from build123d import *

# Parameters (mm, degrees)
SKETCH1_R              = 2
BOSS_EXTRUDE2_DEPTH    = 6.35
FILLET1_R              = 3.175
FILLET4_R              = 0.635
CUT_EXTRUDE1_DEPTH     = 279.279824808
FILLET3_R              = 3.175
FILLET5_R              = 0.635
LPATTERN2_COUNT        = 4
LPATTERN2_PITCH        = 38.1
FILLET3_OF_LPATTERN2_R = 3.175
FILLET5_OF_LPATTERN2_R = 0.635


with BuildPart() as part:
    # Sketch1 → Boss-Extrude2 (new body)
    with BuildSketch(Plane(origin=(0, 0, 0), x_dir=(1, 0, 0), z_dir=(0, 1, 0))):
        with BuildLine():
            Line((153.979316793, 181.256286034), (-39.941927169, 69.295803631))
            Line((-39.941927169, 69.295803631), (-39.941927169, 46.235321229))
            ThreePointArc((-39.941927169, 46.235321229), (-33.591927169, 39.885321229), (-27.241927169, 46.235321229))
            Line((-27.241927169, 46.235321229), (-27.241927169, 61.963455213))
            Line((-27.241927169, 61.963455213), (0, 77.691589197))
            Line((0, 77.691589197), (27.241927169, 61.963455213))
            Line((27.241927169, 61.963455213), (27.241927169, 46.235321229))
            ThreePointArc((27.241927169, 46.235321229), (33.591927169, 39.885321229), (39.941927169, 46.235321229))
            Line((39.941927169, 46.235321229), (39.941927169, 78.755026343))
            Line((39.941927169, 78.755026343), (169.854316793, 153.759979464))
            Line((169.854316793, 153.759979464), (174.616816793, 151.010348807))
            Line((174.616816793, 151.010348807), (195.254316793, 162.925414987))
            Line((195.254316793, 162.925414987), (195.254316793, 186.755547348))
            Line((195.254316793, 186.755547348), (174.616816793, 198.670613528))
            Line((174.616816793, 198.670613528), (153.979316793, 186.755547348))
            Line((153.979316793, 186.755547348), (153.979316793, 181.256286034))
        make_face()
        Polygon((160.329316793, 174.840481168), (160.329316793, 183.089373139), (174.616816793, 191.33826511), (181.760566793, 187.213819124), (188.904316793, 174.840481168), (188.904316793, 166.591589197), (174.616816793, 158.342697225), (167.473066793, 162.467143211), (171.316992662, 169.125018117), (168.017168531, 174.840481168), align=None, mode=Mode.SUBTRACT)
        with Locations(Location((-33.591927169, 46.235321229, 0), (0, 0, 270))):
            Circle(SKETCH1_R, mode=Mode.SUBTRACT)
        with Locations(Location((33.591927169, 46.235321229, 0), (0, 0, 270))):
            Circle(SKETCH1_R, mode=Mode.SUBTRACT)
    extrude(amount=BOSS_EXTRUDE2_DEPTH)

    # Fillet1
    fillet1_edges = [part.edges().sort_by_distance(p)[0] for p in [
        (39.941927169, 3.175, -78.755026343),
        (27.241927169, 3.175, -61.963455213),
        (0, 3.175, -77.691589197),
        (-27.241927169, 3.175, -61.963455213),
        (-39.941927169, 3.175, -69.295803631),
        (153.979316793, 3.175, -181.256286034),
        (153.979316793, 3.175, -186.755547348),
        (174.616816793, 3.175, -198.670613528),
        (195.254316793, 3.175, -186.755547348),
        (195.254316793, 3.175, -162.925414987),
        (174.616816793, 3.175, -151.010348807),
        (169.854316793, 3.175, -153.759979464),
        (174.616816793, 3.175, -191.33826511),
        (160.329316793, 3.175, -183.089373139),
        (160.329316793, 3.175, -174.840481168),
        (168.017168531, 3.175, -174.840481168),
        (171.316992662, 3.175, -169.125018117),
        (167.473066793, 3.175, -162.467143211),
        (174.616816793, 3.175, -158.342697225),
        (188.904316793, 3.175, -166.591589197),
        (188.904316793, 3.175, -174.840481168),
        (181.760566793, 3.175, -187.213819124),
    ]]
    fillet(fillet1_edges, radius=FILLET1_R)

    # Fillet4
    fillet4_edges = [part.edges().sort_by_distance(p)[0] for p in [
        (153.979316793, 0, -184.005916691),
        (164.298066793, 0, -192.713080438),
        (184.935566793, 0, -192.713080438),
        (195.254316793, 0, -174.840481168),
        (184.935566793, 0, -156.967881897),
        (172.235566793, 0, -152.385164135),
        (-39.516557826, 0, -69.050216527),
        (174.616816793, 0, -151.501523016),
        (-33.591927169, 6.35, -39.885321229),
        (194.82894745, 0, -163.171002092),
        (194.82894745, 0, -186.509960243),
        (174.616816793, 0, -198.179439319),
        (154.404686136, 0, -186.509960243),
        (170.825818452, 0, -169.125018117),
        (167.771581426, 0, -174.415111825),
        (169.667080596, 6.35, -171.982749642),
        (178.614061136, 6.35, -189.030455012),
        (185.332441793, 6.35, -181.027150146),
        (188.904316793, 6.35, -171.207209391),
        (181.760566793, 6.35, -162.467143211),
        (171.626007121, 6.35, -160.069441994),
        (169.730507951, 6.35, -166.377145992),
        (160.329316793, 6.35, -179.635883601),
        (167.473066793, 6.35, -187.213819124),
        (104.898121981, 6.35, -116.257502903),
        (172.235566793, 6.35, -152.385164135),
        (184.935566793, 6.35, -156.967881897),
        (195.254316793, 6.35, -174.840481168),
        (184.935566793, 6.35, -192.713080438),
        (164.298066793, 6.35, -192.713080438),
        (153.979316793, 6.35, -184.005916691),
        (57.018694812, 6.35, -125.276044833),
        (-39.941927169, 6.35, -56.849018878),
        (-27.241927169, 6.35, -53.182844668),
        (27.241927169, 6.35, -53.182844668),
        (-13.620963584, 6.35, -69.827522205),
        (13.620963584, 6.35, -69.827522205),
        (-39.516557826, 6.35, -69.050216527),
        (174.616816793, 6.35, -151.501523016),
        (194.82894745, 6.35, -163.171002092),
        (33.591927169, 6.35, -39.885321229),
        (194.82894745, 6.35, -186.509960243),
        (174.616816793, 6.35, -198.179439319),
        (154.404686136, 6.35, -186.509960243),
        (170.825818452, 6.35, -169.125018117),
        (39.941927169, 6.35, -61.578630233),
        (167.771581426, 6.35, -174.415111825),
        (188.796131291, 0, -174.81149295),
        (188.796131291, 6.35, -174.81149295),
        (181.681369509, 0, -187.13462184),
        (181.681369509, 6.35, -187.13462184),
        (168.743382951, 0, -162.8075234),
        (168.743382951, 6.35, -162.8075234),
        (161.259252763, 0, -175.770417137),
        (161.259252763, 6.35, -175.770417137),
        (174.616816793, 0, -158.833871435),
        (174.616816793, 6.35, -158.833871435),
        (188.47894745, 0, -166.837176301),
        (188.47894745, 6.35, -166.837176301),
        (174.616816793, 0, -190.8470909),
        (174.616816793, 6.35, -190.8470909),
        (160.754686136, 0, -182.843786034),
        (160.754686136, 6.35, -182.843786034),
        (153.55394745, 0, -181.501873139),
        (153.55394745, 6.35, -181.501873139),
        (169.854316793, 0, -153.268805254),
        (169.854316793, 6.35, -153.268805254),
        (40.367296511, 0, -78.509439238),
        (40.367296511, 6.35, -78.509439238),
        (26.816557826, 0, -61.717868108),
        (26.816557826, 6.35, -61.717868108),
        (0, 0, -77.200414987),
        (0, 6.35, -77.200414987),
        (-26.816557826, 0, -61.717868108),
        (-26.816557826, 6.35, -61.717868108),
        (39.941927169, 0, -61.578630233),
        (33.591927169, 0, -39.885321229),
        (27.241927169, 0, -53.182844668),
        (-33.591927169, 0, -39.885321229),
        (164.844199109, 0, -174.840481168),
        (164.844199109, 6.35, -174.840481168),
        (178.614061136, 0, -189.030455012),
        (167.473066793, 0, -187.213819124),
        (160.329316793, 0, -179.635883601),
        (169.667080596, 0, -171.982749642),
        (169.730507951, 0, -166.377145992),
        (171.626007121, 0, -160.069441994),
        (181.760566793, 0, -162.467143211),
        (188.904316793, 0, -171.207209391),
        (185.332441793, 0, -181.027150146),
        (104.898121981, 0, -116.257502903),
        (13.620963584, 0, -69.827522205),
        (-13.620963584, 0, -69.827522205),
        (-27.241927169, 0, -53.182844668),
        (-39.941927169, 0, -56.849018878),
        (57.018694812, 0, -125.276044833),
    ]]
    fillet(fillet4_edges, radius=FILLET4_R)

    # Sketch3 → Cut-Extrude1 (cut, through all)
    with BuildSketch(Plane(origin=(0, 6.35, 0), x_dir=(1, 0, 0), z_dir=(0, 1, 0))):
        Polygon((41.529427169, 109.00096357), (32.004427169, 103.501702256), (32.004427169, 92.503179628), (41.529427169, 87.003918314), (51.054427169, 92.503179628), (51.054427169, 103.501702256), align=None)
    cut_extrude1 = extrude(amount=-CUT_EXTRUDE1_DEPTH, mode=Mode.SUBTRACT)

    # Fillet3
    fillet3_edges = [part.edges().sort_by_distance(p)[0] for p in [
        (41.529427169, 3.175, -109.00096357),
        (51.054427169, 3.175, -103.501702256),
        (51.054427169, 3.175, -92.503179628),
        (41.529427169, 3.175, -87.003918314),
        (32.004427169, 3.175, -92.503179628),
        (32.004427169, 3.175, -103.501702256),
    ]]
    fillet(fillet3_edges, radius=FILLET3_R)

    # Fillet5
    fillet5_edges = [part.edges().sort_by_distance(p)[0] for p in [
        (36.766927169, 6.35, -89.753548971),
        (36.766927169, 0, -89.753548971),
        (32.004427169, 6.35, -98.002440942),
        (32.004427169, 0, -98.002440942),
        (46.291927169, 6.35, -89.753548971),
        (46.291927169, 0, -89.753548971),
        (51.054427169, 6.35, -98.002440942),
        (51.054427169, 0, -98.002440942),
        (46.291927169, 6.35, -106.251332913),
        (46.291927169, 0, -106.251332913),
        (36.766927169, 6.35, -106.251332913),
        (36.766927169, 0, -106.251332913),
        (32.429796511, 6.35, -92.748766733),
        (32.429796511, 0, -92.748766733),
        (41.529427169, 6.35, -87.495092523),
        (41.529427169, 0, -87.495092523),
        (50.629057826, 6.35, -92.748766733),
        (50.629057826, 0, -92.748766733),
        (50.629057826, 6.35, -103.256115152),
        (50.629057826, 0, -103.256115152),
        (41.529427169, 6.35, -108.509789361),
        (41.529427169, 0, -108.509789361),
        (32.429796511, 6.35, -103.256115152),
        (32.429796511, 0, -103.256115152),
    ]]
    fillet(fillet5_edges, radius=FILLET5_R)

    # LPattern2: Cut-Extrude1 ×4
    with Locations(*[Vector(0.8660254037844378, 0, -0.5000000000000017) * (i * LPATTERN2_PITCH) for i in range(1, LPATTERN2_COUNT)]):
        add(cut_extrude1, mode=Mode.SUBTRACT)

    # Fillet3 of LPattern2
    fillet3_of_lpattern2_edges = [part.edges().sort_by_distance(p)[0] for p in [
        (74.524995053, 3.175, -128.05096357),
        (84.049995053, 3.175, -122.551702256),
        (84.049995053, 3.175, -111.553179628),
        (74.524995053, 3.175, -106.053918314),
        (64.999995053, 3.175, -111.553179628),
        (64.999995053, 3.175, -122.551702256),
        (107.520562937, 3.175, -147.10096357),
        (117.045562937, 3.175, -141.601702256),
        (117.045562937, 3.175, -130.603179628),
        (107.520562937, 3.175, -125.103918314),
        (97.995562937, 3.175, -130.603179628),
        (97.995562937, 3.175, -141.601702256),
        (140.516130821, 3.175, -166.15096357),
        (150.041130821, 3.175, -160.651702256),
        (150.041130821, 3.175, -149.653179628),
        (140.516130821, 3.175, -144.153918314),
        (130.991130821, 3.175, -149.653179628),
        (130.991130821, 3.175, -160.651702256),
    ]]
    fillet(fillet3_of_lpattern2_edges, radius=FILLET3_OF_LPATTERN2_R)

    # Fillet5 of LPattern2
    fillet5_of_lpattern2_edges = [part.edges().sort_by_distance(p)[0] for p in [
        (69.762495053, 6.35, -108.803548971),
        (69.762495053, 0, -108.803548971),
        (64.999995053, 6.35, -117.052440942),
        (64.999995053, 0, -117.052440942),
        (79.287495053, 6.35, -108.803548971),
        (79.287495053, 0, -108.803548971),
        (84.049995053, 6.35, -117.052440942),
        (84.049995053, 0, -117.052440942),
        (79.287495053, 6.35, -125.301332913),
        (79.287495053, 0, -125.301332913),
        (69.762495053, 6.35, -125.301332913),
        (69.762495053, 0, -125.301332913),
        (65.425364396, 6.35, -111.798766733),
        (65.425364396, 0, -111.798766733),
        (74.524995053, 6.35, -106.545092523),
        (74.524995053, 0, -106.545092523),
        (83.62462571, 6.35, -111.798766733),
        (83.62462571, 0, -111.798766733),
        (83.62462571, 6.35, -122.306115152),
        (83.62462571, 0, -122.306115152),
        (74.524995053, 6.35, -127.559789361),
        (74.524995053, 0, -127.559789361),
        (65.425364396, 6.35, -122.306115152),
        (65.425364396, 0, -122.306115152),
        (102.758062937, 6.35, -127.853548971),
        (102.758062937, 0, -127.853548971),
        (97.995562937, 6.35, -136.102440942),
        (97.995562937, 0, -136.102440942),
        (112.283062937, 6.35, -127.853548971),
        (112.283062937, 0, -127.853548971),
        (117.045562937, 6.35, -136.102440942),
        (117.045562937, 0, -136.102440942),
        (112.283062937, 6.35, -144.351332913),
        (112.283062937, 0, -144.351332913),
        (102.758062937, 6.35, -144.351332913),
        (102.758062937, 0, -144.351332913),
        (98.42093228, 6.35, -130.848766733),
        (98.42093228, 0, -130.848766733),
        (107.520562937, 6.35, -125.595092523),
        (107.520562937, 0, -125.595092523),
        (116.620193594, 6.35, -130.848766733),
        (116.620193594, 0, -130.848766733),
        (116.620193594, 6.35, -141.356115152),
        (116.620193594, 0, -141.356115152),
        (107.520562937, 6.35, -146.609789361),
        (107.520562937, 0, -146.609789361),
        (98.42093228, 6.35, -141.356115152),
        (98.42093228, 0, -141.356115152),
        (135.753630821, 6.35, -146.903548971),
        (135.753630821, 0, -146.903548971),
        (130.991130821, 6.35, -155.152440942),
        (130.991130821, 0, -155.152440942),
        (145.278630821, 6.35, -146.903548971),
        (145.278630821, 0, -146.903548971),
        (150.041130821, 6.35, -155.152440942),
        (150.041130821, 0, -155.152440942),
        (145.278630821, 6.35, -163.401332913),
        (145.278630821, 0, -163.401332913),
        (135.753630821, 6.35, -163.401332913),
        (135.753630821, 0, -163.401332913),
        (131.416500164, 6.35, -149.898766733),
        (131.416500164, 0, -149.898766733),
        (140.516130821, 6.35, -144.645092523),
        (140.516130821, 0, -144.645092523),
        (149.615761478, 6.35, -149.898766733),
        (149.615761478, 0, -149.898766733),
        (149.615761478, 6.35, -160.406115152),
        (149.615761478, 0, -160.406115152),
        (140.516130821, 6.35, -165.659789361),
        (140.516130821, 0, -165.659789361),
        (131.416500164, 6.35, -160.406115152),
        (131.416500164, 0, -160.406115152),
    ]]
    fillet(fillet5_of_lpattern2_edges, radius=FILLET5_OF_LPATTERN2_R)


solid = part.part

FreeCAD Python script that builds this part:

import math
import FreeCAD as App
import Part
import Sketcher

V = App.Vector
Q = App.Units.Quantity


def edges_at(feature, points):
    """Names of the edges that pass closest to the given points."""
    edges = feature.Shape.Edges
    near = lambda p: min(range(len(edges)), key=lambda i: edges[i].distToShape(Part.Vertex(*p))[0])
    return sorted({f"Edge{near(p) + 1}" for p in points})


def add_polygon(sketch, points):
    """Adds a closed chain of lines whose ends are joined by coincident constraints."""
    first, n = sketch.GeometryCount, len(points)
    for a, b in zip(points, points[1:] + points[:1]):
        sketch.addGeometry(Part.LineSegment(App.Vector(*a, 0), App.Vector(*b, 0)), False)
    for i in range(n):
        sketch.addConstraint(Sketcher.Constraint("Coincident", first + i, 2, first + (i + 1) % n, 1))

doc = App.newDocument("Part")
body = doc.addObject("PartDesign::Body", "Body")

# Sketch on XZ plane
sketch1 = body.newObject("Sketcher::SketchObject", "Sketch")
sketch1.AttachmentSupport = (doc.getObject("XZ_Plane"), [""])
sketch1.MapMode = "FlatFace"
sketch1.addGeometry(Part.LineSegment(V(154, -181.3, 0), V(-39.9, -69.3, 0)), False)  # 0
sketch1.addGeometry(Part.LineSegment(V(-39.9, -69.3, 0), V(-39.9, -46.2, 0)), False)  # 1
sketch1.addGeometry(Part.ArcOfCircle(Part.Circle(V(-33.6, -46.2, 0), V(0, 0, 1), 6.3), math.radians(0), math.radians(180)), False)  # 2
sketch1.addGeometry(Part.LineSegment(V(-27.2, -46.2, 0), V(-27.2, -62, 0)), False)  # 3
sketch1.addGeometry(Part.LineSegment(V(-27.2, -62, 0), V(0, -77.7, 0)), False)  # 4
sketch1.addGeometry(Part.LineSegment(V(0, -77.7, 0), V(27.2, -62, 0)), False)  # 5
sketch1.addGeometry(Part.LineSegment(V(27.2, -62, 0), V(27.2, -46.2, 0)), False)  # 6
sketch1.addGeometry(Part.ArcOfCircle(Part.Circle(V(33.6, -46.2, 0), V(0, 0, 1), 6.3), math.radians(0), math.radians(180)), False)  # 7
sketch1.addGeometry(Part.LineSegment(V(39.9, -46.2, 0), V(39.9, -78.8, 0)), False)  # 8
sketch1.addGeometry(Part.LineSegment(V(39.9, -78.8, 0), V(169.9, -153.8, 0)), False)  # 9
sketch1.addGeometry(Part.LineSegment(V(169.9, -153.8, 0), V(174.6, -151, 0)), False)  # 10
sketch1.addGeometry(Part.LineSegment(V(174.6, -151, 0), V(195.3, -162.9, 0)), False)  # 11
sketch1.addGeometry(Part.LineSegment(V(195.3, -162.9, 0), V(195.3, -186.8, 0)), False)  # 12
sketch1.addGeometry(Part.LineSegment(V(195.3, -186.8, 0), V(174.6, -198.7, 0)), False)  # 13
sketch1.addGeometry(Part.LineSegment(V(174.6, -198.7, 0), V(154, -186.8, 0)), False)  # 14
sketch1.addGeometry(Part.LineSegment(V(154, -186.8, 0), V(154, -181.3, 0)), False)  # 15
sketch1.addGeometry(Part.Circle(V(-33.6, -46.2, 0), V(0, 0, 1), 2), False)  # 16
sketch1.addGeometry(Part.Circle(V(33.6, -46.2, 0), V(0, 0, 1), 2), False)  # 17
add_polygon(sketch1, [(168, -174.8), (160.3, -174.8), (160.3, -183.1), (174.6, -191.3), (181.8, -187.2), (188.9, -174.8), (188.9, -166.6), (174.6, -158.3), (167.5, -162.5), (171.3, -169.1)])  # lines 18-27
sketch1.addConstraint(Sketcher.Constraint("Coincident", 0, 2, 1, 1))
sketch1.addConstraint(Sketcher.Constraint("Tangent", 1, 2, 2, 2))
sketch1.addConstraint(Sketcher.Constraint("Tangent", 2, 1, 3, 1))
sketch1.addConstraint(Sketcher.Constraint("Coincident", 3, 2, 4, 1))
sketch1.addConstraint(Sketcher.Constraint("Coincident", 4, 2, 5, 1))
sketch1.addConstraint(Sketcher.Constraint("Coincident", 5, 2, 6, 1))
sketch1.addConstraint(Sketcher.Constraint("Tangent", 6, 2, 7, 2))
sketch1.addConstraint(Sketcher.Constraint("Tangent", 7, 1, 8, 1))
sketch1.addConstraint(Sketcher.Constraint("Coincident", 8, 2, 9, 1))
sketch1.addConstraint(Sketcher.Constraint("Coincident", 9, 2, 10, 1))
sketch1.addConstraint(Sketcher.Constraint("Coincident", 10, 2, 11, 1))
sketch1.addConstraint(Sketcher.Constraint("Coincident", 11, 2, 12, 1))
sketch1.addConstraint(Sketcher.Constraint("Coincident", 12, 2, 13, 1))
sketch1.addConstraint(Sketcher.Constraint("Coincident", 13, 2, 14, 1))
sketch1.addConstraint(Sketcher.Constraint("Coincident", 14, 2, 15, 1))
sketch1.addConstraint(Sketcher.Constraint("Coincident", 15, 2, 0, 1))
sketch1.addConstraint(Sketcher.Constraint("Vertical", 1))
sketch1.addConstraint(Sketcher.Constraint("Vertical", 3))
sketch1.addConstraint(Sketcher.Constraint("Vertical", 6))
sketch1.addConstraint(Sketcher.Constraint("Vertical", 8))
sketch1.addConstraint(Sketcher.Constraint("Vertical", 12))
sketch1.addConstraint(Sketcher.Constraint("Vertical", 15))
sketch1.addConstraint(Sketcher.Constraint("Horizontal", 18))
sketch1.addConstraint(Sketcher.Constraint("Vertical", 19))
sketch1.addConstraint(Sketcher.Constraint("Vertical", 23))
sketch1.addConstraint(Sketcher.Constraint("Coincident", 16, 3, 2, 3))
sketch1.addConstraint(Sketcher.Constraint("Coincident", 17, 3, 7, 3))
sketch1.addConstraint(Sketcher.Constraint("Equal", 2, 7))
sketch1.addConstraint(Sketcher.Constraint("Equal", 16, 17))
sketch1.addConstraint(Sketcher.Constraint("Symmetric", 2, 3, 7, 3, -2))
sketch1.addConstraint(Sketcher.Constraint("PointOnObject", 4, 2, -2))
sketch1.addConstraint(Sketcher.Constraint("Parallel", 0, 4))
sketch1.addConstraint(Sketcher.Constraint("Parallel", 4, 9))
sketch1.addConstraint(Sketcher.Constraint("Parallel", 5, 10))
sketch1.addConstraint(Sketcher.Constraint("Parallel", 9, 11))
sketch1.addConstraint(Sketcher.Constraint("Parallel", 10, 13))
sketch1.addConstraint(Sketcher.Constraint("Parallel", 11, 14))
sketch1.addConstraint(Sketcher.Constraint("Parallel", 14, 20))
sketch1.addConstraint(Sketcher.Constraint("Parallel", 13, 21))
sketch1.addConstraint(Sketcher.Constraint("Perpendicular", 20, 22))
sketch1.addConstraint(Sketcher.Constraint("Perpendicular", 22, 24))
sketch1.addConstraint(Sketcher.Constraint("Parallel", 21, 25))
sketch1.addConstraint(Sketcher.Constraint("Perpendicular", 25, 26))
sketch1.addConstraint(Sketcher.Constraint("Perpendicular", 24, 27))
sketch1.addConstraint(Sketcher.Constraint("Horizontal", 3, 2, 5, 2))
sketch1.addConstraint(Sketcher.Constraint("Horizontal", 12, 2, 14, 2))
sketch1.addConstraint(Sketcher.Constraint("Horizontal", 18, 2, 22, 2))
sketch1.addConstraint(Sketcher.Constraint("Vertical", 10, 2, 13, 2))
sketch1.addConstraint(Sketcher.Constraint("Vertical", 13, 2, 20, 2))
sketch1.addConstraint(Sketcher.Constraint("Vertical", 20, 2, 24, 2))
sketch1.addConstraint(Sketcher.Constraint("Equal", 19, 23))
sketch1.addConstraint(Sketcher.Constraint("Equal", 20, 24))
sketch1.addConstraint(Sketcher.Constraint("Equal", 21, 25))
sketch1.addConstraint(Sketcher.Constraint("Radius", 2, Q("0.25 in")))
sketch1.addConstraint(Sketcher.Constraint("Angle", 0, Q("150 deg")))
sketch1.addConstraint(Sketcher.Constraint("DistanceX", 9, 2, 11, 2, Q("1 in")))
sketch1.addConstraint(Sketcher.Constraint("Diameter", 16, Q("4 mm")))
sketch1.addConstraint(Sketcher.Constraint("DistanceX", 15, 2, 18, 2, Q("0.25 in")))
sketch1.addConstraint(Sketcher.Constraint("Distance", 22, Q("0.5625 in")))
sketch1.addConstraint(Sketcher.Constraint("DistanceX", 9, 2, 10, 2, Q("0.1875 in")))
sketch1.addConstraint(Sketcher.Constraint("DistanceX", 18, 2, 18, 1, Q("7.687852 mm")))
sketch1.addConstraint(Sketcher.Constraint("DistanceY", 15, 1, 15, 2, Q("5.499261 mm")))
sketch1.addConstraint(Sketcher.Constraint("DistanceY", 12, 2, 10, 2, Q("35.745199 mm")))
sketch1.addConstraint(Sketcher.Constraint("DistanceY", 18, 2, 9, 2, Q("21.080502 mm")))
sketch1.addConstraint(Sketcher.Constraint("DistanceY", 1, 1, 1, 2, Q("23.060482 mm")))
sketch1.addConstraint(Sketcher.Constraint("DistanceY", 3, 2, 3, 1, Q("15.728134 mm")))
sketch1.addConstraint(Sketcher.Constraint("DistanceY", 8, 2, 8, 1, Q("32.519705 mm")))
sketch1.addConstraint(Sketcher.Constraint("DistanceY", 2, 3, -1, 1, Q("46.235321 mm")))
sketch1.addConstraint(Sketcher.Constraint("DistanceY", 9, 2, -1, 1, Q("153.759979 mm")))
pad1 = body.newObject("PartDesign::Pad", "Pad")
pad1.Profile = sketch1
pad1.Length = Q("0.25 in")
pad1.Reversed = True
doc.recompute()

fillet = body.newObject("PartDesign::Fillet", "Fillet")
fillet.Base = (pad1, edges_at(pad1, [
    (39.942, 3.175, -78.755),
    (27.242, 3.175, -61.963),
    (0, 3.175, -77.692),
    (-27.242, 3.175, -61.963),
    (-39.942, 3.175, -69.296),
    (153.979, 3.175, -181.256),
    (153.979, 3.175, -186.756),
    (174.617, 3.175, -198.671),
    (195.254, 3.175, -186.756),
    (195.254, 3.175, -162.925),
    (174.617, 3.175, -151.01),
    (169.854, 3.175, -153.76),
    (174.617, 3.175, -191.338),
    (160.329, 3.175, -183.089),
    (160.329, 3.175, -174.84),
    (168.017, 3.175, -174.84),
    (171.317, 3.175, -169.125),
    (167.473, 3.175, -162.467),
    (174.617, 3.175, -158.343),
    (188.904, 3.175, -166.592),
    (188.904, 3.175, -174.84),
    (181.761, 3.175, -187.214),
]))
fillet.Radius = Q("0.125 in")
doc.recompute()

fillet2 = body.newObject("PartDesign::Fillet", "Fillet001")
fillet2.Base = (fillet, edges_at(fillet, [
    (153.979, 0, -184.006),
    (164.298, 0, -192.713),
    (184.936, 0, -192.713),
    (195.254, 0, -174.84),
    (184.936, 0, -156.968),
    (172.236, 0, -152.385),
    (-39.517, 0, -69.05),
    (174.617, 0, -151.502),
    (-33.592, 6.35, -39.885),
    (194.829, 0, -163.171),
    (194.829, 0, -186.51),
    (174.617, 0, -198.179),
    (154.405, 0, -186.51),
    (170.826, 0, -169.125),
    (167.772, 0, -174.415),
    (169.667, 6.35, -171.983),
    (178.614, 6.35, -189.03),
    (185.332, 6.35, -181.027),
    (188.904, 6.35, -171.207),
    (181.761, 6.35, -162.467),
    (171.626, 6.35, -160.069),
    (169.731, 6.35, -166.377),
    (160.329, 6.35, -179.636),
    (167.473, 6.35, -187.214),
    (104.898, 6.35, -116.258),
    (172.236, 6.35, -152.385),
    (184.936, 6.35, -156.968),
    (195.254, 6.35, -174.84),
    (184.936, 6.35, -192.713),
    (164.298, 6.35, -192.713),
    (153.979, 6.35, -184.006),
    (57.019, 6.35, -125.276),
    (-39.942, 6.35, -56.849),
    (-27.242, 6.35, -53.183),
    (27.242, 6.35, -53.183),
    (-13.621, 6.35, -69.828),
    (13.621, 6.35, -69.828),
    (-39.517, 6.35, -69.05),
    (174.617, 6.35, -151.502),
    (194.829, 6.35, -163.171),
    (33.592, 6.35, -39.885),
    (194.829, 6.35, -186.51),
    (174.617, 6.35, -198.179),
    (154.405, 6.35, -186.51),
    (170.826, 6.35, -169.125),
    (39.942, 6.35, -61.579),
    (167.772, 6.35, -174.415),
    (188.796, 0, -174.811),
    (188.796, 6.35, -174.811),
    (181.681, 0, -187.135),
    (181.681, 6.35, -187.135),
    (168.743, 0, -162.808),
    (168.743, 6.35, -162.808),
    (161.259, 0, -175.77),
    (161.259, 6.35, -175.77),
    (174.617, 0, -158.834),
    (174.617, 6.35, -158.834),
    (188.479, 0, -166.837),
    (188.479, 6.35, -166.837),
    (174.617, 0, -190.847),
    (174.617, 6.35, -190.847),
    (160.755, 0, -182.844),
    (160.755, 6.35, -182.844),
    (153.554, 0, -181.502),
    (153.554, 6.35, -181.502),
    (169.854, 0, -153.269),
    (169.854, 6.35, -153.269),
    (40.367, 0, -78.509),
    (40.367, 6.35, -78.509),
    (26.817, 0, -61.718),
    (26.817, 6.35, -61.718),
    (0, 0, -77.2),
    (0, 6.35, -77.2),
    (-26.817, 0, -61.718),
    (-26.817, 6.35, -61.718),
    (39.942, 0, -61.579),
    (33.592, 0, -39.885),
    (27.242, 0, -53.183),
    (-33.592, 0, -39.885),
    (164.844, 0, -174.84),
    (164.844, 6.35, -174.84),
    (178.614, 0, -189.03),
    (167.473, 0, -187.214),
    (160.329, 0, -179.636),
    (169.667, 0, -171.983),
    (169.731, 0, -166.377),
    (171.626, 0, -160.069),
    (181.761, 0, -162.467),
    (188.904, 0, -171.207),
    (185.332, 0, -181.027),
    (104.898, 0, -116.258),
    (13.621, 0, -69.828),
    (-13.621, 0, -69.828),
    (-27.242, 0, -53.183),
    (-39.942, 0, -56.849),
    (57.019, 0, -125.276),
]))
fillet2.Radius = Q("0.025 in")

# Sketch on XZ plane
sketch2 = body.newObject("Sketcher::SketchObject", "Sketch001")
sketch2.AttachmentSupport = (doc.getObject("XZ_Plane"), [""])
sketch2.MapMode = "FlatFace"
sketch2.AttachmentOffset = App.Placement(V(0, 0, -0.25 * 25.4), App.Rotation())
add_polygon(sketch2, [(42, -109), (32, -104), (32, -93), (42, -87), (51, -93), (51, -104)])  # lines 0-5
sketch2.addConstraint(Sketcher.Constraint("Vertical", 1))
sketch2.addConstraint(Sketcher.Constraint("Vertical", 4))
sketch2.addConstraint(Sketcher.Constraint("Parallel", 0, 3))
sketch2.addConstraint(Sketcher.Constraint("Parallel", 2, 5))
sketch2.addConstraint(Sketcher.Constraint("Horizontal", 1, 2, 3, 2))
sketch2.addConstraint(Sketcher.Constraint("Horizontal", 0, 2, 4, 2))
sketch2.addConstraint(Sketcher.Constraint("Vertical", 2, 2, 5, 2))
sketch2.addConstraint(Sketcher.Constraint("Angle", 0, Q("150 deg")))
sketch2.addConstraint(Sketcher.Constraint("DistanceX", 1, 2, 3, 2, Q("0.75 in")))
sketch2.addConstraint(Sketcher.Constraint("DistanceY", 1, 1, 1, 2, Q("10.998523 mm")))
sketch2.addConstraint(Sketcher.Constraint("DistanceY", 1, 2, -1, 1, Q("92.50318 mm")))
sketch2.addConstraint(Sketcher.Constraint("DistanceX", -1, 1, 0, 2, Q("32.004427 mm")))
pocket1 = body.newObject("PartDesign::Pocket", "Pocket")
pocket1.Profile = sketch2
pocket1.Type = "ThroughAll"
pocket1.Reversed = True
doc.recompute()

fillet3 = body.newObject("PartDesign::Fillet", "Fillet002")
fillet3.Base = (pocket1, edges_at(pocket1, [
    (41.529, 3.175, -109.001),
    (51.054, 3.175, -103.502),
    (51.054, 3.175, -92.503),
    (41.529, 3.175, -87.004),
    (32.004, 3.175, -92.503),
    (32.004, 3.175, -103.502),
]))
fillet3.Radius = Q("0.125 in")
doc.recompute()

fillet4 = body.newObject("PartDesign::Fillet", "Fillet003")
fillet4.Base = (fillet3, edges_at(fillet3, [
    (36.767, 6.35, -89.754),
    (36.767, 0, -89.754),
    (32.004, 6.35, -98.002),
    (32.004, 0, -98.002),
    (46.292, 6.35, -89.754),
    (46.292, 0, -89.754),
    (51.054, 6.35, -98.002),
    (51.054, 0, -98.002),
    (46.292, 6.35, -106.251),
    (46.292, 0, -106.251),
    (36.767, 6.35, -106.251),
    (36.767, 0, -106.251),
    (32.43, 6.35, -92.749),
    (32.43, 0, -92.749),
    (41.529, 6.35, -87.495),
    (41.529, 0, -87.495),
    (50.629, 6.35, -92.749),
    (50.629, 0, -92.749),
    (50.629, 6.35, -103.256),
    (50.629, 0, -103.256),
    (41.529, 6.35, -108.51),
    (41.529, 0, -108.51),
    (32.43, 6.35, -103.256),
    (32.43, 0, -103.256),
]))
fillet4.Radius = Q("0.025 in")
doc.recompute()

datumline = body.newObject("PartDesign::Line", "DatumLine")
datumline.Placement = App.Placement(V(0, 0, 0), App.Rotation(V(0, 0, 1), V(0.866025404, 0, -0.5)))
linearpattern = body.newObject("PartDesign::LinearPattern", "LinearPattern")
linearpattern.Originals = [pocket1]
linearpattern.Direction = (datumline, [""])
linearpattern.Mode = "offset"
linearpattern.Offset = Q("1.5 in")
linearpattern.Occurrences = 4
body.Tip = linearpattern
doc.recompute()

fillet5 = body.newObject("PartDesign::Fillet", "Fillet004")
fillet5.Base = (linearpattern, edges_at(linearpattern, [
    (74.525, 3.175, -128.051),
    (84.05, 3.175, -122.552),
    (84.05, 3.175, -111.553),
    (74.525, 3.175, -106.054),
    (65, 3.175, -111.553),
    (65, 3.175, -122.552),
    (107.521, 3.175, -147.101),
    (117.046, 3.175, -141.602),
    (117.046, 3.175, -130.603),
    (107.521, 3.175, -125.104),
    (97.996, 3.175, -130.603),
    (97.996, 3.175, -141.602),
    (140.516, 3.175, -166.151),
    (150.041, 3.175, -160.652),
    (150.041, 3.175, -149.653),
    (140.516, 3.175, -144.154),
    (130.991, 3.175, -149.653),
    (130.991, 3.175, -160.652),
]))
fillet5.Radius = Q("0.125 in")
doc.recompute()

fillet6 = body.newObject("PartDesign::Fillet", "Fillet005")
fillet6.Base = (fillet5, edges_at(fillet5, [
    (69.762, 6.35, -108.804),
    (69.762, 0, -108.804),
    (65, 6.35, -117.052),
    (65, 0, -117.052),
    (79.287, 6.35, -108.804),
    (79.287, 0, -108.804),
    (84.05, 6.35, -117.052),
    (84.05, 0, -117.052),
    (79.287, 6.35, -125.301),
    (79.287, 0, -125.301),
    (69.762, 6.35, -125.301),
    (69.762, 0, -125.301),
    (65.425, 6.35, -111.799),
    (65.425, 0, -111.799),
    (74.525, 6.35, -106.545),
    (74.525, 0, -106.545),
    (83.625, 6.35, -111.799),
    (83.625, 0, -111.799),
    (83.625, 6.35, -122.306),
    (83.625, 0, -122.306),
    (74.525, 6.35, -127.56),
    (74.525, 0, -127.56),
    (65.425, 6.35, -122.306),
    (65.425, 0, -122.306),
    (102.758, 6.35, -127.854),
    (102.758, 0, -127.854),
    (97.996, 6.35, -136.102),
    (97.996, 0, -136.102),
    (112.283, 6.35, -127.854),
    (112.283, 0, -127.854),
    (117.046, 6.35, -136.102),
    (117.046, 0, -136.102),
    (112.283, 6.35, -144.351),
    (112.283, 0, -144.351),
    (102.758, 6.35, -144.351),
    (102.758, 0, -144.351),
    (98.421, 6.35, -130.849),
    (98.421, 0, -130.849),
    (107.521, 6.35, -125.595),
    (107.521, 0, -125.595),
    (116.62, 6.35, -130.849),
    (116.62, 0, -130.849),
    (116.62, 6.35, -141.356),
    (116.62, 0, -141.356),
    (107.521, 6.35, -146.61),
    (107.521, 0, -146.61),
    (98.421, 6.35, -141.356),
    (98.421, 0, -141.356),
    (135.754, 6.35, -146.904),
    (135.754, 0, -146.904),
    (130.991, 6.35, -155.152),
    (130.991, 0, -155.152),
    (145.279, 6.35, -146.904),
    (145.279, 0, -146.904),
    (150.041, 6.35, -155.152),
    (150.041, 0, -155.152),
    (145.279, 6.35, -163.401),
    (145.279, 0, -163.401),
    (135.754, 6.35, -163.401),
    (135.754, 0, -163.401),
    (131.417, 6.35, -149.899),
    (131.417, 0, -149.899),
    (140.516, 6.35, -144.645),
    (140.516, 0, -144.645),
    (149.616, 6.35, -149.899),
    (149.616, 0, -149.899),
    (149.616, 6.35, -160.406),
    (149.616, 0, -160.406),
    (140.516, 6.35, -165.66),
    (140.516, 0, -165.66),
    (131.417, 6.35, -160.406),
    (131.417, 0, -160.406),
]))
fillet6.Radius = Q("0.025 in")

doc.recompute()
